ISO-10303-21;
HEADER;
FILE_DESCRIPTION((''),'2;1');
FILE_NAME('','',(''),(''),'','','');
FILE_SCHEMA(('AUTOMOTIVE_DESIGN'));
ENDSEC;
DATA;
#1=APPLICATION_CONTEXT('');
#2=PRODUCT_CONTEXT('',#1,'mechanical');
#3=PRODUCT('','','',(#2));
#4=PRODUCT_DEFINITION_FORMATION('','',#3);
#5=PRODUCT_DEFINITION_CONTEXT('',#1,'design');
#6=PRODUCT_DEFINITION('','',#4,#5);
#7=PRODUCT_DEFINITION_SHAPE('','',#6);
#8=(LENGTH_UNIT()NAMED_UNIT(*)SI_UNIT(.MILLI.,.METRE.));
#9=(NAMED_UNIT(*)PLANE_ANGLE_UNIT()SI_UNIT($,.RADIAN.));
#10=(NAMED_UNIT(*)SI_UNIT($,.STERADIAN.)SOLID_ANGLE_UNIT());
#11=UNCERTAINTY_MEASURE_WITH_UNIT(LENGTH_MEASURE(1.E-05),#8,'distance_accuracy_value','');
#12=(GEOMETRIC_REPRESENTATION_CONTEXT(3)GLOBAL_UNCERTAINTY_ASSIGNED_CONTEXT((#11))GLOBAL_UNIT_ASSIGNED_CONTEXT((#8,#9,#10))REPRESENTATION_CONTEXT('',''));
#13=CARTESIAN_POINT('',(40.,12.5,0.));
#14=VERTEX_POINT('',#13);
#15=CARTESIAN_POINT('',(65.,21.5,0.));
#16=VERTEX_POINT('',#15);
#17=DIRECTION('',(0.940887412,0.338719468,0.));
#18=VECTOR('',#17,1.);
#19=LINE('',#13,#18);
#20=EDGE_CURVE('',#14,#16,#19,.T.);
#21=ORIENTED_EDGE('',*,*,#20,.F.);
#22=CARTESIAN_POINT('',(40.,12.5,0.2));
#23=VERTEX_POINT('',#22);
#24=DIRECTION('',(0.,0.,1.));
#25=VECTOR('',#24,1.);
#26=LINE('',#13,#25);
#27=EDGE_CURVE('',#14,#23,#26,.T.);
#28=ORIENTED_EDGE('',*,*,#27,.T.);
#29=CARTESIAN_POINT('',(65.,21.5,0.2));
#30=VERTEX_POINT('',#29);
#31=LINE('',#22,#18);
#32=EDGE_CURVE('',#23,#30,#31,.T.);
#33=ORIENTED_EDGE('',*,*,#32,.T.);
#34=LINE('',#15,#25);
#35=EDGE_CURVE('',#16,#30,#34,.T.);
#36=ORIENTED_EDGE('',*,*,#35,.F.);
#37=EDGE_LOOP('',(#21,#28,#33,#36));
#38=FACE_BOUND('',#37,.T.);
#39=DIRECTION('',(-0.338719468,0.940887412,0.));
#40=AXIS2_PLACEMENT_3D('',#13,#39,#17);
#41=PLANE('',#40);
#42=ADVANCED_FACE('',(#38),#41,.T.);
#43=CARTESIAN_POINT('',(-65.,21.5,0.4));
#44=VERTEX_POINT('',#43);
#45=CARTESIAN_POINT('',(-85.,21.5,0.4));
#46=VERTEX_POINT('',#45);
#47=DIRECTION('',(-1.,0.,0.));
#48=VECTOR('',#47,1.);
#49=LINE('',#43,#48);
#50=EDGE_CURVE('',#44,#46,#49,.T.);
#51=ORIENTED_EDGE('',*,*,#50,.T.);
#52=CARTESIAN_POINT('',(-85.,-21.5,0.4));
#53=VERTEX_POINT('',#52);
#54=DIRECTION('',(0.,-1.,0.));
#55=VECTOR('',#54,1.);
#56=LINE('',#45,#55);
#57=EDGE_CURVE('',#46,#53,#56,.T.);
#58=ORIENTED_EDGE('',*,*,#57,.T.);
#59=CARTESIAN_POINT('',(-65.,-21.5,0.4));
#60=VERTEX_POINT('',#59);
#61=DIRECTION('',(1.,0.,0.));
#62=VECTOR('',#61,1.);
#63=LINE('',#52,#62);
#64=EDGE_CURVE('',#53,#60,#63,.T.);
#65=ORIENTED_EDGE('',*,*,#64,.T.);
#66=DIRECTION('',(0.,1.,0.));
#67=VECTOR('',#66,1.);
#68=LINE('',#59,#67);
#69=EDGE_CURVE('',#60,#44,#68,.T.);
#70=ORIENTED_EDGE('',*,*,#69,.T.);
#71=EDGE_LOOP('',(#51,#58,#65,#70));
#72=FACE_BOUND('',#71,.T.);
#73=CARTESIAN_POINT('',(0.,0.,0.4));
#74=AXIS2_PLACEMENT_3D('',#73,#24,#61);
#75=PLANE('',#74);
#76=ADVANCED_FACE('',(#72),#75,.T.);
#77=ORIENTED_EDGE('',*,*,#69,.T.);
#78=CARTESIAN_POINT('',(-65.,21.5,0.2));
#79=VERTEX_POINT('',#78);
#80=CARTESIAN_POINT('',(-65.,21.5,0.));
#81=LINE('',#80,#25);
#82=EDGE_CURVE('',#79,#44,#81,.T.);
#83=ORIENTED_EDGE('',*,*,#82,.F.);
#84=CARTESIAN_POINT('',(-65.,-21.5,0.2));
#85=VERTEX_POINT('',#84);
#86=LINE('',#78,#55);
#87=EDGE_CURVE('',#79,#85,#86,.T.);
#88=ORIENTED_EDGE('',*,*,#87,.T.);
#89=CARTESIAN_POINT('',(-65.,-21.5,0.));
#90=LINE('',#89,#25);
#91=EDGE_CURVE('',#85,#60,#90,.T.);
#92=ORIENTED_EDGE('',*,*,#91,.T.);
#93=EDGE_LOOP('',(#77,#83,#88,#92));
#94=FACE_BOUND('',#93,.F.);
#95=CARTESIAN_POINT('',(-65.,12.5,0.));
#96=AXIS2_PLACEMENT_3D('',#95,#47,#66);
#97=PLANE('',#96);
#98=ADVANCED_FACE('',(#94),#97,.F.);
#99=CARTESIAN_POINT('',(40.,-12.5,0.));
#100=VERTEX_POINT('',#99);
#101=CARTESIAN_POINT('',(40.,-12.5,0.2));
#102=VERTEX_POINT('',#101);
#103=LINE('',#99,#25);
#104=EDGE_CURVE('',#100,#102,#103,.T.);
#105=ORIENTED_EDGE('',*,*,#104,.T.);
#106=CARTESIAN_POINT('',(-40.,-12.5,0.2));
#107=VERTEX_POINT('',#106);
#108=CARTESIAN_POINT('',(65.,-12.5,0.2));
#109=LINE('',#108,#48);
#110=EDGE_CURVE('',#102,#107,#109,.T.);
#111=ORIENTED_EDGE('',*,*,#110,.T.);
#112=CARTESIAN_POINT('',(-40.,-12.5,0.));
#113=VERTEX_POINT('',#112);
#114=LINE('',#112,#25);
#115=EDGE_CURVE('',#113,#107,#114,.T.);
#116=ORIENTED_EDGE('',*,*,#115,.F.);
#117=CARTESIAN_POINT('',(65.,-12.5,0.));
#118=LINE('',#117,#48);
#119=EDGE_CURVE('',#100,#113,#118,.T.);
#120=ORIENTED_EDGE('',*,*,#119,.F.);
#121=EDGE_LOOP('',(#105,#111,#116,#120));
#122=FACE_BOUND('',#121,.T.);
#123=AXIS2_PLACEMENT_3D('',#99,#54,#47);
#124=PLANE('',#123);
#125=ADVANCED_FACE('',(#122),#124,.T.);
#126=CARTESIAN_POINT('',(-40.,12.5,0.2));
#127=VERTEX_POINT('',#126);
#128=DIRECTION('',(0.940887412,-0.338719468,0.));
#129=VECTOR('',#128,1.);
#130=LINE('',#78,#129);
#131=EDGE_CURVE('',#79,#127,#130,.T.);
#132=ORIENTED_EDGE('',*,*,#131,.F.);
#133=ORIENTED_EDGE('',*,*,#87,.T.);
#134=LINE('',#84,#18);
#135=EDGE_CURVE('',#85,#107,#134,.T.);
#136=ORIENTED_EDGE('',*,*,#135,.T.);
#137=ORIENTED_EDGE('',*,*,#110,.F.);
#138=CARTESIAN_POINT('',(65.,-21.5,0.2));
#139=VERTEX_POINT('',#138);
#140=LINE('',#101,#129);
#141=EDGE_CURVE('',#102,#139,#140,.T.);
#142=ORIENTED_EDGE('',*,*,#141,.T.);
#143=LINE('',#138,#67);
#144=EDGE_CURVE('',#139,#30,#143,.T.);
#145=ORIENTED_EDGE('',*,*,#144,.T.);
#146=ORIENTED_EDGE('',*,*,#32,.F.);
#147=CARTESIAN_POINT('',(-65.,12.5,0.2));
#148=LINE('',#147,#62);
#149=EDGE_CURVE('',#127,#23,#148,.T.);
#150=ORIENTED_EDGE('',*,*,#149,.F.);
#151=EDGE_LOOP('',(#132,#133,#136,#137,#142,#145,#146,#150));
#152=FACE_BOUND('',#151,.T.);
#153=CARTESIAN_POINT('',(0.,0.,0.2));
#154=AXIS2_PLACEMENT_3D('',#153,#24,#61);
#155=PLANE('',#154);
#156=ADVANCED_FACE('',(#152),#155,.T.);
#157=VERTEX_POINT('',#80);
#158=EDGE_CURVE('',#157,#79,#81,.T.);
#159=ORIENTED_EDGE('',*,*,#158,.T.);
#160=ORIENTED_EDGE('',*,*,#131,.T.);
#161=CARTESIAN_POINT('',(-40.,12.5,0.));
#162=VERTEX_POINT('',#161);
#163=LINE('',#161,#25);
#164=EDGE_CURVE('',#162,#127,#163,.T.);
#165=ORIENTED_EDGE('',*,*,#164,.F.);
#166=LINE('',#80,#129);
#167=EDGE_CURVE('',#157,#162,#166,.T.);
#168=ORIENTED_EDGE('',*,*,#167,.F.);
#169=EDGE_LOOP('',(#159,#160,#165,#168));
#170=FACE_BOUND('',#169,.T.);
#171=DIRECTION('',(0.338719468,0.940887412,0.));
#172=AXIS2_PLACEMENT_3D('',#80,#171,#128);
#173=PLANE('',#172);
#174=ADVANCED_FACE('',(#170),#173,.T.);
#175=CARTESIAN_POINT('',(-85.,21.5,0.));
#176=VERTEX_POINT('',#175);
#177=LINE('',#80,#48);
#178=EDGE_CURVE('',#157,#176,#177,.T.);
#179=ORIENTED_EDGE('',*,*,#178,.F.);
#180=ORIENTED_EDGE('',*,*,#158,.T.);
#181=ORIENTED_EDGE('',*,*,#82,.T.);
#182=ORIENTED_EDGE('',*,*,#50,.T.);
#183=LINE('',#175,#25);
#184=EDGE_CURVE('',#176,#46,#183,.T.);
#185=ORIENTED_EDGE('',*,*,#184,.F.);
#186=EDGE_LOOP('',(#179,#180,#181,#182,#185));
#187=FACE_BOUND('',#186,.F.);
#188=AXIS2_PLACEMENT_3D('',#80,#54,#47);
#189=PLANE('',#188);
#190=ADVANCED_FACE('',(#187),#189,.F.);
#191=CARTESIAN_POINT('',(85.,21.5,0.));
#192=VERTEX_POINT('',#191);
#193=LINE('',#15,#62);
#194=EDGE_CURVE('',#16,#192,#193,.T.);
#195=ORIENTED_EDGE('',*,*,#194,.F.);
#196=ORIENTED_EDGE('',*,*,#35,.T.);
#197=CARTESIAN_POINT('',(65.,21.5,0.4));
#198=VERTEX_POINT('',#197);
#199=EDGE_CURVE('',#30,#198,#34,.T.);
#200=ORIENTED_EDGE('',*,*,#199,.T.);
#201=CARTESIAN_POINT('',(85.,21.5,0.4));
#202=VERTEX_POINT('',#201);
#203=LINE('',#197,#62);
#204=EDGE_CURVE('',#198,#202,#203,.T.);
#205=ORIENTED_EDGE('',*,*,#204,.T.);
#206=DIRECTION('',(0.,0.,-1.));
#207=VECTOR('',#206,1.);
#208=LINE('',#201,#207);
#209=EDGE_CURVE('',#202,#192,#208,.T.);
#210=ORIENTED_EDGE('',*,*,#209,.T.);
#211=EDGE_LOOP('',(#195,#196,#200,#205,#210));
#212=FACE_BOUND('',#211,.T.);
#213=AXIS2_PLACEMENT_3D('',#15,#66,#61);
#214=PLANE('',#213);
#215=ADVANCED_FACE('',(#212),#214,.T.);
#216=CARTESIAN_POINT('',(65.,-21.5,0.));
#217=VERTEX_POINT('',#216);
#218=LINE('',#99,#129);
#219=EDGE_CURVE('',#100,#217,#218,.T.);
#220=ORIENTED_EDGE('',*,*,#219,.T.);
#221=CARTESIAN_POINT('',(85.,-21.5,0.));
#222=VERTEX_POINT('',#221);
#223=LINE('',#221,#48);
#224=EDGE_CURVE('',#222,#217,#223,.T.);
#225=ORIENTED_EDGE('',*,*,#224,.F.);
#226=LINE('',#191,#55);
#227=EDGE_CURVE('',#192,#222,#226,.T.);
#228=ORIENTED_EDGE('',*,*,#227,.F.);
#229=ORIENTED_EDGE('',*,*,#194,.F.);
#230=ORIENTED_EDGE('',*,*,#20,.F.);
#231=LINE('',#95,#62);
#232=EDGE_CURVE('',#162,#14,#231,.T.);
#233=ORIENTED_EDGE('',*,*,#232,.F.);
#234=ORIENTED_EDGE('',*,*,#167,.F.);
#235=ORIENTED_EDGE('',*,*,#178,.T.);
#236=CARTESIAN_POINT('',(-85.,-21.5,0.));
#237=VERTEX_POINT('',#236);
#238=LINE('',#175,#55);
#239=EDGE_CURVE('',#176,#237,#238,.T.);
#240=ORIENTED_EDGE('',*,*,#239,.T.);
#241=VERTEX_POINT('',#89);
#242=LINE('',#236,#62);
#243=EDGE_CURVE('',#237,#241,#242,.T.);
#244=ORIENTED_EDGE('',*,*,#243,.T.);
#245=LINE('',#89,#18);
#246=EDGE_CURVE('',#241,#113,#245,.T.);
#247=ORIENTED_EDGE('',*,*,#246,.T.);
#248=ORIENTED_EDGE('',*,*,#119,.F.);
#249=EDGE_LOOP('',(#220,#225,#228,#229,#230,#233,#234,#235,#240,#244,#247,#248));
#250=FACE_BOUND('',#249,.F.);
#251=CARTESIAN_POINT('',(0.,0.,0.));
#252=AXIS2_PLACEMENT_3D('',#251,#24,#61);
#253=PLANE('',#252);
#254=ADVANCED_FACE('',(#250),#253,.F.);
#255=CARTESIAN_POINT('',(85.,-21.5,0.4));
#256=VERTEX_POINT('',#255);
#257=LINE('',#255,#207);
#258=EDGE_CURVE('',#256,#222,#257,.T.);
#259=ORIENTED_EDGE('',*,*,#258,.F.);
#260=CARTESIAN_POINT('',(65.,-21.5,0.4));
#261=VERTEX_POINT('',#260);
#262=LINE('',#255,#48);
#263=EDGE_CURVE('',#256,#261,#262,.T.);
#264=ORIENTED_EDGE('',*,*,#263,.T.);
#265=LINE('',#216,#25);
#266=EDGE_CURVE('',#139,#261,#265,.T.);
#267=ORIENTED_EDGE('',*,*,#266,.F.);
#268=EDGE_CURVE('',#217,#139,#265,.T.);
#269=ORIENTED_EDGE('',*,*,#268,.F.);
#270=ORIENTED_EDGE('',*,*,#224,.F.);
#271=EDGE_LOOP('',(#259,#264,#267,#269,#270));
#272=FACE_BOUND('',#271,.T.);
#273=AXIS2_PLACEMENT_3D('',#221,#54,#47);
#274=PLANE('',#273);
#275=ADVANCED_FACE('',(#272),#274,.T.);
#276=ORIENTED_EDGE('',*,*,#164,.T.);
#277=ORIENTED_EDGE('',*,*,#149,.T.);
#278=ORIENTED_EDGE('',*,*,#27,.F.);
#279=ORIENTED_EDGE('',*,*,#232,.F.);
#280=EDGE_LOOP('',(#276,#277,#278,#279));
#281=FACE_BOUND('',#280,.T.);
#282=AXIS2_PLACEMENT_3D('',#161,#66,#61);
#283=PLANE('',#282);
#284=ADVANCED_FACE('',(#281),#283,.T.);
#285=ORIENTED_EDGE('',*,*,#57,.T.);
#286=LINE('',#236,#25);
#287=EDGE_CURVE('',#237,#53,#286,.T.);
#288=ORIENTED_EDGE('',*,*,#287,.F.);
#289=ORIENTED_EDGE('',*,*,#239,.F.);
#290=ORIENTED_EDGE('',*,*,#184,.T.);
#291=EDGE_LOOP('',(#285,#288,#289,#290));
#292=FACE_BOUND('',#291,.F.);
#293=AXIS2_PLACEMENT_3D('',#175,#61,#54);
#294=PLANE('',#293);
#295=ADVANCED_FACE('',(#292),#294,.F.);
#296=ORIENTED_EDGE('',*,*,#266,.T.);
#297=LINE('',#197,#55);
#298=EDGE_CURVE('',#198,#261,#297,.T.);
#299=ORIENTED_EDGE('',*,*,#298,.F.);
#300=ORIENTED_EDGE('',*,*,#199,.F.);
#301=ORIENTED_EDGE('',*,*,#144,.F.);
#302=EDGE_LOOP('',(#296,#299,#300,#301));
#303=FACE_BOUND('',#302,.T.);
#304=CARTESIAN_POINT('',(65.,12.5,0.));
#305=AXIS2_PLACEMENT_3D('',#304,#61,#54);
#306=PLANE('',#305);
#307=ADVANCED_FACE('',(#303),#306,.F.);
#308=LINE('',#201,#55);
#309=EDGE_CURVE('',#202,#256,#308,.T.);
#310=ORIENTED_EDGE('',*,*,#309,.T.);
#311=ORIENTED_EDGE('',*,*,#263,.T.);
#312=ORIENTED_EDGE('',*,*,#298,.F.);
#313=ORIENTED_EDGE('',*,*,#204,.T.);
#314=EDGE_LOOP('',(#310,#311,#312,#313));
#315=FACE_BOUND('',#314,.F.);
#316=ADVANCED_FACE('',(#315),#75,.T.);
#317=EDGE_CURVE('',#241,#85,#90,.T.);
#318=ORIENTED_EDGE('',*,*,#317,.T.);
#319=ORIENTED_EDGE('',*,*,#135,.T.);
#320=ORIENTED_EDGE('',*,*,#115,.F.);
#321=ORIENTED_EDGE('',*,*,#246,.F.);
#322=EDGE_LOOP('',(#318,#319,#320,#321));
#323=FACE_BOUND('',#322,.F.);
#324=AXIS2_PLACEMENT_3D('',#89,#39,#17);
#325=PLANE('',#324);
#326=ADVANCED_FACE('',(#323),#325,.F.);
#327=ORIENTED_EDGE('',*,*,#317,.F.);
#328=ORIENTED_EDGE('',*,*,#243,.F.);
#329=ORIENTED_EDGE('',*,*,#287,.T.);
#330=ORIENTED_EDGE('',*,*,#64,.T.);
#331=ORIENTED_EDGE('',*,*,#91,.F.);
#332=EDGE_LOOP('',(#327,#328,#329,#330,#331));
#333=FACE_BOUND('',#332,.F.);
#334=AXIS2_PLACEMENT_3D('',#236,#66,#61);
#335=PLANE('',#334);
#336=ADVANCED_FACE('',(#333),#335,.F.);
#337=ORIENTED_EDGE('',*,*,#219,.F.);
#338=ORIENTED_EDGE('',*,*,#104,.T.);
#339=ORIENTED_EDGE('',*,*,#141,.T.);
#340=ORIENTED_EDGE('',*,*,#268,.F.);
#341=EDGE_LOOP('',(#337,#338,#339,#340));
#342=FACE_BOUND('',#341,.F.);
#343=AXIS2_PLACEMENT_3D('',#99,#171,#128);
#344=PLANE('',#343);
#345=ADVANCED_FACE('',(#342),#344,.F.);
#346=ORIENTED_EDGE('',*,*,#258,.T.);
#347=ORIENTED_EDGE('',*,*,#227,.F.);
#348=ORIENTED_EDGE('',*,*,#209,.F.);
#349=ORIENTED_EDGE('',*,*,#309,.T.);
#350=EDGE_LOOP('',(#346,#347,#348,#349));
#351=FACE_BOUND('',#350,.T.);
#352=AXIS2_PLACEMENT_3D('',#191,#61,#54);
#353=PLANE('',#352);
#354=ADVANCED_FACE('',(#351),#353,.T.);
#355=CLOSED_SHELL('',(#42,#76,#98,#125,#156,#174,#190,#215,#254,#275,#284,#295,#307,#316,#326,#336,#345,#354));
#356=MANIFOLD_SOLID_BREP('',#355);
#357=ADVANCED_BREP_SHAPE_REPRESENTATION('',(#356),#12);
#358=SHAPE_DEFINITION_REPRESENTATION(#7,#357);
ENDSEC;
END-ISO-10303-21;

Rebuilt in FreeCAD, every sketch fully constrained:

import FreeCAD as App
import Part
import Sketcher
Q = App.Units.Quantity

doc = App.newDocument("Part")
body = doc.addObject("PartDesign::Body", "Body")

# Sketch on XY plane
sketch1 = doc.addObject("Sketcher::SketchObject", "Sketch")
body.addObject(sketch1)
sketch1.AttachmentSupport = (doc.XY_Plane, [""])
sketch1.MapMode = "FlatFace"
sketch1.addGeometry([
    Part.LineSegment(App.Vector(-40, 12, 0), App.Vector(-65, 22, 0)),  # 0
    Part.LineSegment(App.Vector(-65, 22, 0), App.Vector(-85, 22, 0)),  # 1
    Part.LineSegment(App.Vector(-85, 22, 0), App.Vector(-85, -22, 0)),  # 2
    Part.LineSegment(App.Vector(-85, -22, 0), App.Vector(-65, -22, 0)),  # 3
    Part.LineSegment(App.Vector(-65, -22, 0), App.Vector(-40, -12, 0)),  # 4
    Part.LineSegment(App.Vector(-40, -12, 0), App.Vector(40, -12, 0)),  # 5
    Part.LineSegment(App.Vector(40, -12, 0), App.Vector(65, -22, 0)),  # 6
    Part.LineSegment(App.Vector(65, -22, 0), App.Vector(85, -22, 0)),  # 7
    Part.LineSegment(App.Vector(85, -22, 0), App.Vector(85, 22, 0)),  # 8
    Part.LineSegment(App.Vector(85, 22, 0), App.Vector(65, 22, 0)),  # 9
    Part.LineSegment(App.Vector(65, 22, 0), App.Vector(40, 12, 0)),  # 10
    Part.LineSegment(App.Vector(40, 12, 0), App.Vector(-40, 12, 0)),  # 11
], False)
sketch1.addConstraint([
    Sketcher.Constraint("Coincident", 0, 2, 1, 1),
    Sketcher.Constraint("Coincident", 1, 2, 2, 1),
    Sketcher.Constraint("Coincident", 2, 2, 3, 1),
    Sketcher.Constraint("Coincident", 3, 2, 4, 1),
    Sketcher.Constraint("Coincident", 4, 2, 5, 1),
    Sketcher.Constraint("Coincident", 5, 2, 6, 1),
    Sketcher.Constraint("Coincident", 6, 2, 7, 1),
    Sketcher.Constraint("Coincident", 7, 2, 8, 1),
    Sketcher.Constraint("Coincident", 8, 2, 9, 1),
    Sketcher.Constraint("Coincident", 9, 2, 10, 1),
    Sketcher.Constraint("Coincident", 10, 2, 11, 1),
    Sketcher.Constraint("Coincident", 11, 2, 0, 1),
    Sketcher.Constraint("Horizontal", 1),
    Sketcher.Constraint("Vertical", 2),
    Sketcher.Constraint("Horizontal", 3),
    Sketcher.Constraint("Horizontal", 5),
    Sketcher.Constraint("Horizontal", 7),
    Sketcher.Constraint("Vertical", 8),
    Sketcher.Constraint("Horizontal", 9),
    Sketcher.Constraint("Horizontal", 11),
    Sketcher.Constraint("Symmetric", 0, 2, 6, 2, -1, 1),
    Sketcher.Constraint("Symmetric", 2, 2, 8, 2, -1, 1),
    Sketcher.Constraint("Symmetric", 4, 2, 10, 2, -1, 1),
    Sketcher.Constraint("Symmetric", 3, 2, 6, 2, -2),
    Sketcher.Constraint("Parallel", 0, 6),
    Sketcher.Constraint("Parallel", 4, 10),
    Sketcher.Constraint("Vertical", 5, 2, 10, 2),
    Sketcher.Constraint("DistanceX", 1, 2, 1, 1, Q("20 mm")),
    Sketcher.Constraint("DistanceY", 2, 2, 2, 1, Q("43 mm")),
    Sketcher.Constraint("DistanceX", 4, 2, -1, 1, Q("40 mm")),
    Sketcher.Constraint("DistanceX", 3, 2, 4, 2, Q("25 mm")),
    Sketcher.Constraint("DistanceY", 5, 2, 10, 2, Q("25 mm")),
])
pad1 = doc.addObject("PartDesign::Pad", "Pad")
body.addObject(pad1)
pad1.Profile = sketch1
pad1.Length = 0.2

# Sketch on XY plane
sketch2 = doc.addObject("Sketcher::SketchObject", "Sketch001")
body.addObject(sketch2)
sketch2.AttachmentSupport = (doc.XY_Plane, [""])
sketch2.MapMode = "FlatFace"
sketch2.addGeometry([
    Part.LineSegment(App.Vector(-65, -22, 0), App.Vector(-65, 22, 0)),
    Part.LineSegment(App.Vector(-65, 22, 0), App.Vector(-85, 22, 0)),
    Part.LineSegment(App.Vector(-85, 22, 0), App.Vector(-85, -22, 0)),
    Part.LineSegment(App.Vector(-85, -22, 0), App.Vector(-65, -22, 0)),
], False)
sketch2.addConstraint([
    Sketcher.Constraint("Coincident", 0, 2, 1, 1),
    Sketcher.Constraint("Coincident", 1, 2, 2, 1),
    Sketcher.Constraint("Coincident", 2, 2, 3, 1),
    Sketcher.Constraint("Coincident", 3, 2, 0, 1),
    Sketcher.Constraint("Vertical", 0),
    Sketcher.Constraint("Horizontal", 1),
    Sketcher.Constraint("Vertical", 2),
    Sketcher.Constraint("Horizontal", 3),
    Sketcher.Constraint("DistanceX", 1, 2, 1, 1, Q("20 mm")),
    Sketcher.Constraint("DistanceY", 0, 1, 0, 2, Q("43 mm")),
    Sketcher.Constraint("DistanceX", 0, 2, -1, 1, Q("65 mm")),
    Sketcher.Constraint("DistanceY", -1, 1, 0, 2, Q("21.5 mm")),
])
pad2 = doc.addObject("PartDesign::Pad", "Pad001")
body.addObject(pad2)
pad2.Profile = sketch2
pad2.Length = 0.4
doc.recompute()

mirrored = doc.addObject("PartDesign::Mirrored", "Mirrored")
body.addObject(mirrored)
mirrored.Originals = [pad2]
mirrored.MirrorPlane = (doc.YZ_Plane, [""])
body.Tip = mirrored

doc.recompute()
